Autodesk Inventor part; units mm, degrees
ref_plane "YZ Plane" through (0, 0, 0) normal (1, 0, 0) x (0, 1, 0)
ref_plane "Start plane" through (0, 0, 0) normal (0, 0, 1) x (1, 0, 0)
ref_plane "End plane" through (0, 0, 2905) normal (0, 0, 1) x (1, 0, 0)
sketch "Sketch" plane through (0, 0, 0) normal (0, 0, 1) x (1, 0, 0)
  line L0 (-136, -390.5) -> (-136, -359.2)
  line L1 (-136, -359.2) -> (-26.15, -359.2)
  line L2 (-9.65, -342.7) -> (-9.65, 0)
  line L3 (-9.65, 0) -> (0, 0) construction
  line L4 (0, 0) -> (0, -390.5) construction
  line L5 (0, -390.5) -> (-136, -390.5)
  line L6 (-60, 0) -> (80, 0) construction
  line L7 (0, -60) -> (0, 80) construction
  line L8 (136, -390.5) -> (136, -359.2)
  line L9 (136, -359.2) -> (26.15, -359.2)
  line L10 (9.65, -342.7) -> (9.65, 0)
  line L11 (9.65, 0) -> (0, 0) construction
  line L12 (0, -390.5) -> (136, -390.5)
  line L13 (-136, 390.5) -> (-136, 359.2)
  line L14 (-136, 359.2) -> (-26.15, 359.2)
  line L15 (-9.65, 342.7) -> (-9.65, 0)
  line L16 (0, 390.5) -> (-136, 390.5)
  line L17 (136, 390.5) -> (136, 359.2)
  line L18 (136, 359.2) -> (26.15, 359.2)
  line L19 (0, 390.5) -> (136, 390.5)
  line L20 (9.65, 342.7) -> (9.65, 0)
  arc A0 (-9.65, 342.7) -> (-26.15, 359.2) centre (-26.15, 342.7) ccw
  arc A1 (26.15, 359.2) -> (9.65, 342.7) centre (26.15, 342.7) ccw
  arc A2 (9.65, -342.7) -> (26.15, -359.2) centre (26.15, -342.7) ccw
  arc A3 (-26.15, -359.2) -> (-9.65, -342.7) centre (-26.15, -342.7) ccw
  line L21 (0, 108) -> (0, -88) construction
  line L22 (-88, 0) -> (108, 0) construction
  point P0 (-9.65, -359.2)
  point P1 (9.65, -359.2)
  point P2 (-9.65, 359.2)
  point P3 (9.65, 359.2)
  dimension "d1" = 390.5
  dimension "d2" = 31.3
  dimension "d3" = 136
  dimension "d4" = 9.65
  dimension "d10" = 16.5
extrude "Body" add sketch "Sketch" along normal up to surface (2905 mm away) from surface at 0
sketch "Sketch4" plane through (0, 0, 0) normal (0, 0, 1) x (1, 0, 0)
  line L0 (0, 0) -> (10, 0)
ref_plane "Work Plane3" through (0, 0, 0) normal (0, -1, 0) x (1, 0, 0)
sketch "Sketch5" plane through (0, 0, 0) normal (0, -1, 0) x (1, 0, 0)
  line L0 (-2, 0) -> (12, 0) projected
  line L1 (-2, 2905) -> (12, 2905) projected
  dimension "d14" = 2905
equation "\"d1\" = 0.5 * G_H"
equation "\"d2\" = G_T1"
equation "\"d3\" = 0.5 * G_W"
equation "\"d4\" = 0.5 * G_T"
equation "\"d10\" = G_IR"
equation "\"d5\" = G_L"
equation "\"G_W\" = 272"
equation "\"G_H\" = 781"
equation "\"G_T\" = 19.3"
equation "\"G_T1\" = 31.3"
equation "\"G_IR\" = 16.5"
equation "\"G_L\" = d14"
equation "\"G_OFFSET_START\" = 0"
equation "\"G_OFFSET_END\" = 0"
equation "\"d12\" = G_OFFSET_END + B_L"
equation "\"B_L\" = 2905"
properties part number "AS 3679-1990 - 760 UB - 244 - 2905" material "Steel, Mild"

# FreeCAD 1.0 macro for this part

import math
import FreeCAD as App
import Part
import Sketcher
Q = App.Units.Quantity

doc = App.newDocument("Part")
body = doc.addObject("PartDesign::Body", "Body")

sketch1 = body.newObject("Sketcher::SketchObject", "Sketch")
sketch1.AttachmentSupport = (doc.getObject("XY_Plane"), [""])
sketch1.MapMode = "FlatFace"
sketch1.addGeometry(Part.LineSegment(App.Vector(-136, -359.2, 0), App.Vector(-136, -390.5, 0)), False)
sketch1.addGeometry(Part.LineSegment(App.Vector(-136, -390.5, 0), App.Vector(136, -390.5, 0)), False)
sketch1.addGeometry(Part.LineSegment(App.Vector(136, -390.5, 0), App.Vector(136, -359.2, 0)), False)
sketch1.addGeometry(Part.LineSegment(App.Vector(136, -359.2, 0), App.Vector(26.15, -359.2, 0)), False)
sketch1.addGeometry(Part.ArcOfCircle(Part.Circle(App.Vector(26.15, -342.7, 0), App.Vector(0, 0, 1), 16.5), math.radians(180), math.radians(270)), False)
sketch1.addGeometry(Part.LineSegment(App.Vector(9.65, -342.7, 0), App.Vector(9.65, 342.7, 0)), False)
sketch1.addGeometry(Part.ArcOfCircle(Part.Circle(App.Vector(26.15, 342.7, 0), App.Vector(0, 0, 1), 16.5), math.radians(90), math.radians(180)), False)
sketch1.addGeometry(Part.LineSegment(App.Vector(26.15, 359.2, 0), App.Vector(136, 359.2, 0)), False)
sketch1.addGeometry(Part.LineSegment(App.Vector(136, 359.2, 0), App.Vector(136, 390.5, 0)), False)
sketch1.addGeometry(Part.LineSegment(App.Vector(136, 390.5, 0), App.Vector(-136, 390.5, 0)), False)
sketch1.addGeometry(Part.LineSegment(App.Vector(-136, 390.5, 0), App.Vector(-136, 359.2, 0)), False)
sketch1.addGeometry(Part.LineSegment(App.Vector(-136, 359.2, 0), App.Vector(-26.15, 359.2, 0)), False)
sketch1.addGeometry(Part.ArcOfCircle(Part.Circle(App.Vector(-26.15, 342.7, 0), App.Vector(0, 0, 1), 16.5), math.radians(0), math.radians(90)), False)
sketch1.addGeometry(Part.LineSegment(App.Vector(-9.65, 342.7, 0), App.Vector(-9.65, -342.7, 0)), False)
sketch1.addGeometry(Part.ArcOfCircle(Part.Circle(App.Vector(-26.15, -342.7, 0), App.Vector(0, 0, 1), 16.5), math.radians(-90), math.radians(0)), False)
sketch1.addGeometry(Part.LineSegment(App.Vector(-26.15, -359.2, 0), App.Vector(-136, -359.2, 0)), False)
sketch1.addConstraint(Sketcher.Constraint("Coincident", 0, 2, 1, 1))
sketch1.addConstraint(Sketcher.Constraint("Coincident", 1, 2, 2, 1))
sketch1.addConstraint(Sketcher.Constraint("Coincident", 2, 2, 3, 1))
sketch1.addConstraint(Sketcher.Constraint("Tangent", 3, 2, 4, 2))
sketch1.addConstraint(Sketcher.Constraint("Tangent", 4, 1, 5, 1))
sketch1.addConstraint(Sketcher.Constraint("Tangent", 5, 2, 6, 2))
sketch1.addConstraint(Sketcher.Constraint("Tangent", 6, 1, 7, 1))
sketch1.addConstraint(Sketcher.Constraint("Coincident", 7, 2, 8, 1))
sketch1.addConstraint(Sketcher.Constraint("Coincident", 8, 2, 9, 1))
sketch1.addConstraint(Sketcher.Constraint("Coincident", 9, 2, 10, 1))
sketch1.addConstraint(Sketcher.Constraint("Coincident", 10, 2, 11, 1))
sketch1.addConstraint(Sketcher.Constraint("Tangent", 11, 2, 12, 2))
sketch1.addConstraint(Sketcher.Constraint("Tangent", 12, 1, 13, 1))
sketch1.addConstraint(Sketcher.Constraint("Tangent", 13, 2, 14, 2))
sketch1.addConstraint(Sketcher.Constraint("Tangent", 14, 1, 15, 1))
sketch1.addConstraint(Sketcher.Constraint("Coincident", 15, 2, 0, 1))
sketch1.addConstraint(Sketcher.Constraint("Vertical", 0))
sketch1.addConstraint(Sketcher.Constraint("Horizontal", 1))
sketch1.addConstraint(Sketcher.Constraint("Vertical", 2))
sketch1.addConstraint(Sketcher.Constraint("Horizontal", 3))
sketch1.addConstraint(Sketcher.Constraint("Vertical", 5))
sketch1.addConstraint(Sketcher.Constraint("Horizontal", 7))
sketch1.addConstraint(Sketcher.Constraint("Vertical", 8))
sketch1.addConstraint(Sketcher.Constraint("Horizontal", 9))
sketch1.addConstraint(Sketcher.Constraint("Vertical", 10))
sketch1.addConstraint(Sketcher.Constraint("Horizontal", 11))
sketch1.addConstraint(Sketcher.Constraint("Vertical", 13))
sketch1.addConstraint(Sketcher.Constraint("Horizontal", 15))
sketch1.addConstraint(Sketcher.Constraint("Equal", 4, 6))
sketch1.addConstraint(Sketcher.Constraint("Equal", 6, 12))
sketch1.addConstraint(Sketcher.Constraint("Equal", 12, 14))
sketch1.addConstraint(Sketcher.Constraint("Symmetric", 4, 3, 12, 3, -1, 1))
sketch1.addConstraint(Sketcher.Constraint("Symmetric", 0, 2, 8, 2, -1, 1))
sketch1.addConstraint(Sketcher.Constraint("Symmetric", 7, 2, 10, 2, -2))
sketch1.addConstraint(Sketcher.Constraint("Symmetric", 2, 2, 15, 2, -2))
sketch1.addConstraint(Sketcher.Constraint("Radius", 4, Q("16.5 mm")))
sketch1.addConstraint(Sketcher.Constraint("DistanceY", 0, 2, 0, 1, Q("31.3 mm")))
sketch1.addConstraint(Sketcher.Constraint("DistanceX", 0, 2, -1, 1, Q("136 mm")))
sketch1.addConstraint(Sketcher.Constraint("DistanceY", 0, 2, -1, 1, Q("390.5 mm")))
sketch1.addConstraint(Sketcher.Constraint("DistanceX", -1, 1, 4, 1, Q("9.65 mm")))
pad1 = body.newObject("PartDesign::Pad", "Pad")
pad1.Profile = sketch1
pad1.Length = 2905

doc.recompute()
